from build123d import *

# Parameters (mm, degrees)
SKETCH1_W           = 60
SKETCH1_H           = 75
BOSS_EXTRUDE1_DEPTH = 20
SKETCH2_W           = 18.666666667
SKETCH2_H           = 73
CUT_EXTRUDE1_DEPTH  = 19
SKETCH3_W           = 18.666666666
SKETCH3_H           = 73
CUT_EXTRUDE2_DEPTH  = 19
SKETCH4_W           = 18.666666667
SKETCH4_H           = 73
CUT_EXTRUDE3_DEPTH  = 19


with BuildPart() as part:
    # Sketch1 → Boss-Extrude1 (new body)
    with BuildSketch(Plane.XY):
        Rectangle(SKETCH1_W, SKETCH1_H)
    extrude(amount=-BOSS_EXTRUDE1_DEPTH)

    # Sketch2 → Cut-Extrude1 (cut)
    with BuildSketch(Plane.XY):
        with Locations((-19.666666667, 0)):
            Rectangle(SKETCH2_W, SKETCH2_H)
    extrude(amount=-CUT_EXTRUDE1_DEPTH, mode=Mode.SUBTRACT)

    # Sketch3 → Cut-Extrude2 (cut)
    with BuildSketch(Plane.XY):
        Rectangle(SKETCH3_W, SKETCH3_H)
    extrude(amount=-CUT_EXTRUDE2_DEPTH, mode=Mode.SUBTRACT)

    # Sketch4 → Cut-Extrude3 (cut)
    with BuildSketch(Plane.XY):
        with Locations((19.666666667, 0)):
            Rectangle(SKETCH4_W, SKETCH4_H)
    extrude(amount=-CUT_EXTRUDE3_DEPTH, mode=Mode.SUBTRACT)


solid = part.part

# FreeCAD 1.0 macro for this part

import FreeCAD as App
import Part
import Sketcher
from FreeCAD import Vector


def add_polygon(sketch, points):
    """Adds a closed chain of lines whose ends are joined by coincident constraints."""
    first, n = sketch.GeometryCount, len(points)
    for a, b in zip(points, points[1:] + points[:1]):
        sketch.addGeometry(Part.LineSegment(App.Vector(*a, 0), App.Vector(*b, 0)), False)
    for i in range(n):
        sketch.addConstraint(Sketcher.Constraint("Coincident", first + i, 2, first + (i + 1) % n, 1))

doc = App.newDocument("Part")
params = doc.addObject("Spreadsheet::Sheet", "Params")
for row, (alias, value) in enumerate([
    ("sketch1_width", "60 mm"),
    ("sketch1_height", "75 mm"),
    ("pad1_length", "20 mm"),
    ("sketch2_height", "73 mm"),
    ("pocket1_length", "19 mm"),
    ("sketch3_height", "73 mm"),
    ("pocket2_length", "19 mm"),
    ("sketch4_height", "73 mm"),
    ("pocket3_length", "19 mm"),
], start=1):
    params.set(f"A{row}", alias)
    params.set(f"B{row}", "=" + value)
    params.setAlias(f"B{row}", alias)

body = doc.addObject("PartDesign::Body", "Body")

# Sketch on XY plane
sketch1 = body.newObject("Sketcher::SketchObject", "Sketch")
sketch1.AttachmentSupport = (doc.getObject("XY_Plane"), [""])
sketch1.MapMode = "FlatFace"
add_polygon(sketch1, [(-30, 38), (-30, -38), (30, -38), (30, 38)])  # lines 0-3
sketch1.addConstraint([
    Sketcher.Constraint("Vertical", 0),
    Sketcher.Constraint("Horizontal", 1),
    Sketcher.Constraint("Vertical", 2),
    Sketcher.Constraint("Horizontal", 3),
    Sketcher.Constraint("Symmetric", 0, 2, 2, 2, -1, 1),
    Sketcher.Constraint("DistanceX", 1, 1, 1, 2, 60.0),
    Sketcher.Constraint("DistanceY", 0, 2, 0, 1, 75.0),
])
sketch1.setExpression("Constraints[9]", "Params.sketch1_width")
sketch1.setExpression("Constraints[10]", "Params.sketch1_height")
pad1 = body.newObject("PartDesign::Pad", "Pad")
pad1.Profile = sketch1
pad1.setExpression("Length", "Params.pad1_length")
pad1.Reversed = True

# Sketch on XY plane
sketch2 = body.newObject("Sketcher::SketchObject", "Sketch001")
sketch2.AttachmentSupport = (doc.getObject("XY_Plane"), [""])
sketch2.MapMode = "FlatFace"
add_polygon(sketch2, [(-29, 36), (-29, -36), (-10, -36), (-10, 36)])  # lines 0-3
sketch2.addConstraint([
    Sketcher.Constraint("Vertical", 0),
    Sketcher.Constraint("Horizontal", 1),
    Sketcher.Constraint("Vertical", 2),
    Sketcher.Constraint("Horizontal", 3),
    Sketcher.Constraint("DistanceY", 0, 2, 0, 1, 73.0),
    Sketcher.Constraint("DistanceX", 0, 2, -1, 1, 29.0),
    Sketcher.Constraint("DistanceY", 0, 2, -1, 1, 36.5),
    Sketcher.Constraint("DistanceX", 1, 1, 1, 2, 18.666667),
])
sketch2.setExpression("Constraints[8]", "Params.sketch2_height")
pocket1 = body.newObject("PartDesign::Pocket", "Pocket")
pocket1.Profile = sketch2
pocket1.setExpression("Length", "Params.pocket1_length")

# Sketch on XY plane
sketch3 = body.newObject("Sketcher::SketchObject", "Sketch002")
sketch3.AttachmentSupport = (doc.getObject("XY_Plane"), [""])
sketch3.MapMode = "FlatFace"
add_polygon(sketch3, [(-9, 36), (-9, -36), (9, -36), (9, 36)])  # lines 0-3
sketch3.addConstraint([
    Sketcher.Constraint("Vertical", 0),
    Sketcher.Constraint("Horizontal", 1),
    Sketcher.Constraint("Vertical", 2),
    Sketcher.Constraint("Horizontal", 3),
    Sketcher.Constraint("Symmetric", 0, 2, 2, 2, -1, 1),
    Sketcher.Constraint("DistanceY", 0, 2, 0, 1, 73.0),
    Sketcher.Constraint("DistanceX", 1, 1, 1, 2, 18.666667),
])
sketch3.setExpression("Constraints[9]", "Params.sketch3_height")
pocket2 = body.newObject("PartDesign::Pocket", "Pocket001")
pocket2.Profile = sketch3
pocket2.setExpression("Length", "Params.pocket2_length")

# Sketch on XY plane
sketch4 = body.newObject("Sketcher::SketchObject", "Sketch003")
sketch4.AttachmentSupport = (doc.getObject("XY_Plane"), [""])
sketch4.MapMode = "FlatFace"
add_polygon(sketch4, [(10, 36), (10, -36), (29, -36), (29, 36)])  # lines 0-3
sketch4.addConstraint([
    Sketcher.Constraint("Vertical", 0),
    Sketcher.Constraint("Horizontal", 1),
    Sketcher.Constraint("Vertical", 2),
    Sketcher.Constraint("Horizontal", 3),
    Sketcher.Constraint("DistanceY", 0, 2, 0, 1, 73.0),
    Sketcher.Constraint("DistanceX", -1, 1, 1, 2, 29.0),
    Sketcher.Constraint("DistanceY", 0, 2, -1, 1, 36.5),
    Sketcher.Constraint("DistanceX", 1, 1, 1, 2, 18.666667),
])
sketch4.setExpression("Constraints[8]", "Params.sketch4_height")
pocket3 = body.newObject("PartDesign::Pocket", "Pocket002")
pocket3.Profile = sketch4
pocket3.setExpression("Length", "Params.pocket3_length")

doc.recompute()
